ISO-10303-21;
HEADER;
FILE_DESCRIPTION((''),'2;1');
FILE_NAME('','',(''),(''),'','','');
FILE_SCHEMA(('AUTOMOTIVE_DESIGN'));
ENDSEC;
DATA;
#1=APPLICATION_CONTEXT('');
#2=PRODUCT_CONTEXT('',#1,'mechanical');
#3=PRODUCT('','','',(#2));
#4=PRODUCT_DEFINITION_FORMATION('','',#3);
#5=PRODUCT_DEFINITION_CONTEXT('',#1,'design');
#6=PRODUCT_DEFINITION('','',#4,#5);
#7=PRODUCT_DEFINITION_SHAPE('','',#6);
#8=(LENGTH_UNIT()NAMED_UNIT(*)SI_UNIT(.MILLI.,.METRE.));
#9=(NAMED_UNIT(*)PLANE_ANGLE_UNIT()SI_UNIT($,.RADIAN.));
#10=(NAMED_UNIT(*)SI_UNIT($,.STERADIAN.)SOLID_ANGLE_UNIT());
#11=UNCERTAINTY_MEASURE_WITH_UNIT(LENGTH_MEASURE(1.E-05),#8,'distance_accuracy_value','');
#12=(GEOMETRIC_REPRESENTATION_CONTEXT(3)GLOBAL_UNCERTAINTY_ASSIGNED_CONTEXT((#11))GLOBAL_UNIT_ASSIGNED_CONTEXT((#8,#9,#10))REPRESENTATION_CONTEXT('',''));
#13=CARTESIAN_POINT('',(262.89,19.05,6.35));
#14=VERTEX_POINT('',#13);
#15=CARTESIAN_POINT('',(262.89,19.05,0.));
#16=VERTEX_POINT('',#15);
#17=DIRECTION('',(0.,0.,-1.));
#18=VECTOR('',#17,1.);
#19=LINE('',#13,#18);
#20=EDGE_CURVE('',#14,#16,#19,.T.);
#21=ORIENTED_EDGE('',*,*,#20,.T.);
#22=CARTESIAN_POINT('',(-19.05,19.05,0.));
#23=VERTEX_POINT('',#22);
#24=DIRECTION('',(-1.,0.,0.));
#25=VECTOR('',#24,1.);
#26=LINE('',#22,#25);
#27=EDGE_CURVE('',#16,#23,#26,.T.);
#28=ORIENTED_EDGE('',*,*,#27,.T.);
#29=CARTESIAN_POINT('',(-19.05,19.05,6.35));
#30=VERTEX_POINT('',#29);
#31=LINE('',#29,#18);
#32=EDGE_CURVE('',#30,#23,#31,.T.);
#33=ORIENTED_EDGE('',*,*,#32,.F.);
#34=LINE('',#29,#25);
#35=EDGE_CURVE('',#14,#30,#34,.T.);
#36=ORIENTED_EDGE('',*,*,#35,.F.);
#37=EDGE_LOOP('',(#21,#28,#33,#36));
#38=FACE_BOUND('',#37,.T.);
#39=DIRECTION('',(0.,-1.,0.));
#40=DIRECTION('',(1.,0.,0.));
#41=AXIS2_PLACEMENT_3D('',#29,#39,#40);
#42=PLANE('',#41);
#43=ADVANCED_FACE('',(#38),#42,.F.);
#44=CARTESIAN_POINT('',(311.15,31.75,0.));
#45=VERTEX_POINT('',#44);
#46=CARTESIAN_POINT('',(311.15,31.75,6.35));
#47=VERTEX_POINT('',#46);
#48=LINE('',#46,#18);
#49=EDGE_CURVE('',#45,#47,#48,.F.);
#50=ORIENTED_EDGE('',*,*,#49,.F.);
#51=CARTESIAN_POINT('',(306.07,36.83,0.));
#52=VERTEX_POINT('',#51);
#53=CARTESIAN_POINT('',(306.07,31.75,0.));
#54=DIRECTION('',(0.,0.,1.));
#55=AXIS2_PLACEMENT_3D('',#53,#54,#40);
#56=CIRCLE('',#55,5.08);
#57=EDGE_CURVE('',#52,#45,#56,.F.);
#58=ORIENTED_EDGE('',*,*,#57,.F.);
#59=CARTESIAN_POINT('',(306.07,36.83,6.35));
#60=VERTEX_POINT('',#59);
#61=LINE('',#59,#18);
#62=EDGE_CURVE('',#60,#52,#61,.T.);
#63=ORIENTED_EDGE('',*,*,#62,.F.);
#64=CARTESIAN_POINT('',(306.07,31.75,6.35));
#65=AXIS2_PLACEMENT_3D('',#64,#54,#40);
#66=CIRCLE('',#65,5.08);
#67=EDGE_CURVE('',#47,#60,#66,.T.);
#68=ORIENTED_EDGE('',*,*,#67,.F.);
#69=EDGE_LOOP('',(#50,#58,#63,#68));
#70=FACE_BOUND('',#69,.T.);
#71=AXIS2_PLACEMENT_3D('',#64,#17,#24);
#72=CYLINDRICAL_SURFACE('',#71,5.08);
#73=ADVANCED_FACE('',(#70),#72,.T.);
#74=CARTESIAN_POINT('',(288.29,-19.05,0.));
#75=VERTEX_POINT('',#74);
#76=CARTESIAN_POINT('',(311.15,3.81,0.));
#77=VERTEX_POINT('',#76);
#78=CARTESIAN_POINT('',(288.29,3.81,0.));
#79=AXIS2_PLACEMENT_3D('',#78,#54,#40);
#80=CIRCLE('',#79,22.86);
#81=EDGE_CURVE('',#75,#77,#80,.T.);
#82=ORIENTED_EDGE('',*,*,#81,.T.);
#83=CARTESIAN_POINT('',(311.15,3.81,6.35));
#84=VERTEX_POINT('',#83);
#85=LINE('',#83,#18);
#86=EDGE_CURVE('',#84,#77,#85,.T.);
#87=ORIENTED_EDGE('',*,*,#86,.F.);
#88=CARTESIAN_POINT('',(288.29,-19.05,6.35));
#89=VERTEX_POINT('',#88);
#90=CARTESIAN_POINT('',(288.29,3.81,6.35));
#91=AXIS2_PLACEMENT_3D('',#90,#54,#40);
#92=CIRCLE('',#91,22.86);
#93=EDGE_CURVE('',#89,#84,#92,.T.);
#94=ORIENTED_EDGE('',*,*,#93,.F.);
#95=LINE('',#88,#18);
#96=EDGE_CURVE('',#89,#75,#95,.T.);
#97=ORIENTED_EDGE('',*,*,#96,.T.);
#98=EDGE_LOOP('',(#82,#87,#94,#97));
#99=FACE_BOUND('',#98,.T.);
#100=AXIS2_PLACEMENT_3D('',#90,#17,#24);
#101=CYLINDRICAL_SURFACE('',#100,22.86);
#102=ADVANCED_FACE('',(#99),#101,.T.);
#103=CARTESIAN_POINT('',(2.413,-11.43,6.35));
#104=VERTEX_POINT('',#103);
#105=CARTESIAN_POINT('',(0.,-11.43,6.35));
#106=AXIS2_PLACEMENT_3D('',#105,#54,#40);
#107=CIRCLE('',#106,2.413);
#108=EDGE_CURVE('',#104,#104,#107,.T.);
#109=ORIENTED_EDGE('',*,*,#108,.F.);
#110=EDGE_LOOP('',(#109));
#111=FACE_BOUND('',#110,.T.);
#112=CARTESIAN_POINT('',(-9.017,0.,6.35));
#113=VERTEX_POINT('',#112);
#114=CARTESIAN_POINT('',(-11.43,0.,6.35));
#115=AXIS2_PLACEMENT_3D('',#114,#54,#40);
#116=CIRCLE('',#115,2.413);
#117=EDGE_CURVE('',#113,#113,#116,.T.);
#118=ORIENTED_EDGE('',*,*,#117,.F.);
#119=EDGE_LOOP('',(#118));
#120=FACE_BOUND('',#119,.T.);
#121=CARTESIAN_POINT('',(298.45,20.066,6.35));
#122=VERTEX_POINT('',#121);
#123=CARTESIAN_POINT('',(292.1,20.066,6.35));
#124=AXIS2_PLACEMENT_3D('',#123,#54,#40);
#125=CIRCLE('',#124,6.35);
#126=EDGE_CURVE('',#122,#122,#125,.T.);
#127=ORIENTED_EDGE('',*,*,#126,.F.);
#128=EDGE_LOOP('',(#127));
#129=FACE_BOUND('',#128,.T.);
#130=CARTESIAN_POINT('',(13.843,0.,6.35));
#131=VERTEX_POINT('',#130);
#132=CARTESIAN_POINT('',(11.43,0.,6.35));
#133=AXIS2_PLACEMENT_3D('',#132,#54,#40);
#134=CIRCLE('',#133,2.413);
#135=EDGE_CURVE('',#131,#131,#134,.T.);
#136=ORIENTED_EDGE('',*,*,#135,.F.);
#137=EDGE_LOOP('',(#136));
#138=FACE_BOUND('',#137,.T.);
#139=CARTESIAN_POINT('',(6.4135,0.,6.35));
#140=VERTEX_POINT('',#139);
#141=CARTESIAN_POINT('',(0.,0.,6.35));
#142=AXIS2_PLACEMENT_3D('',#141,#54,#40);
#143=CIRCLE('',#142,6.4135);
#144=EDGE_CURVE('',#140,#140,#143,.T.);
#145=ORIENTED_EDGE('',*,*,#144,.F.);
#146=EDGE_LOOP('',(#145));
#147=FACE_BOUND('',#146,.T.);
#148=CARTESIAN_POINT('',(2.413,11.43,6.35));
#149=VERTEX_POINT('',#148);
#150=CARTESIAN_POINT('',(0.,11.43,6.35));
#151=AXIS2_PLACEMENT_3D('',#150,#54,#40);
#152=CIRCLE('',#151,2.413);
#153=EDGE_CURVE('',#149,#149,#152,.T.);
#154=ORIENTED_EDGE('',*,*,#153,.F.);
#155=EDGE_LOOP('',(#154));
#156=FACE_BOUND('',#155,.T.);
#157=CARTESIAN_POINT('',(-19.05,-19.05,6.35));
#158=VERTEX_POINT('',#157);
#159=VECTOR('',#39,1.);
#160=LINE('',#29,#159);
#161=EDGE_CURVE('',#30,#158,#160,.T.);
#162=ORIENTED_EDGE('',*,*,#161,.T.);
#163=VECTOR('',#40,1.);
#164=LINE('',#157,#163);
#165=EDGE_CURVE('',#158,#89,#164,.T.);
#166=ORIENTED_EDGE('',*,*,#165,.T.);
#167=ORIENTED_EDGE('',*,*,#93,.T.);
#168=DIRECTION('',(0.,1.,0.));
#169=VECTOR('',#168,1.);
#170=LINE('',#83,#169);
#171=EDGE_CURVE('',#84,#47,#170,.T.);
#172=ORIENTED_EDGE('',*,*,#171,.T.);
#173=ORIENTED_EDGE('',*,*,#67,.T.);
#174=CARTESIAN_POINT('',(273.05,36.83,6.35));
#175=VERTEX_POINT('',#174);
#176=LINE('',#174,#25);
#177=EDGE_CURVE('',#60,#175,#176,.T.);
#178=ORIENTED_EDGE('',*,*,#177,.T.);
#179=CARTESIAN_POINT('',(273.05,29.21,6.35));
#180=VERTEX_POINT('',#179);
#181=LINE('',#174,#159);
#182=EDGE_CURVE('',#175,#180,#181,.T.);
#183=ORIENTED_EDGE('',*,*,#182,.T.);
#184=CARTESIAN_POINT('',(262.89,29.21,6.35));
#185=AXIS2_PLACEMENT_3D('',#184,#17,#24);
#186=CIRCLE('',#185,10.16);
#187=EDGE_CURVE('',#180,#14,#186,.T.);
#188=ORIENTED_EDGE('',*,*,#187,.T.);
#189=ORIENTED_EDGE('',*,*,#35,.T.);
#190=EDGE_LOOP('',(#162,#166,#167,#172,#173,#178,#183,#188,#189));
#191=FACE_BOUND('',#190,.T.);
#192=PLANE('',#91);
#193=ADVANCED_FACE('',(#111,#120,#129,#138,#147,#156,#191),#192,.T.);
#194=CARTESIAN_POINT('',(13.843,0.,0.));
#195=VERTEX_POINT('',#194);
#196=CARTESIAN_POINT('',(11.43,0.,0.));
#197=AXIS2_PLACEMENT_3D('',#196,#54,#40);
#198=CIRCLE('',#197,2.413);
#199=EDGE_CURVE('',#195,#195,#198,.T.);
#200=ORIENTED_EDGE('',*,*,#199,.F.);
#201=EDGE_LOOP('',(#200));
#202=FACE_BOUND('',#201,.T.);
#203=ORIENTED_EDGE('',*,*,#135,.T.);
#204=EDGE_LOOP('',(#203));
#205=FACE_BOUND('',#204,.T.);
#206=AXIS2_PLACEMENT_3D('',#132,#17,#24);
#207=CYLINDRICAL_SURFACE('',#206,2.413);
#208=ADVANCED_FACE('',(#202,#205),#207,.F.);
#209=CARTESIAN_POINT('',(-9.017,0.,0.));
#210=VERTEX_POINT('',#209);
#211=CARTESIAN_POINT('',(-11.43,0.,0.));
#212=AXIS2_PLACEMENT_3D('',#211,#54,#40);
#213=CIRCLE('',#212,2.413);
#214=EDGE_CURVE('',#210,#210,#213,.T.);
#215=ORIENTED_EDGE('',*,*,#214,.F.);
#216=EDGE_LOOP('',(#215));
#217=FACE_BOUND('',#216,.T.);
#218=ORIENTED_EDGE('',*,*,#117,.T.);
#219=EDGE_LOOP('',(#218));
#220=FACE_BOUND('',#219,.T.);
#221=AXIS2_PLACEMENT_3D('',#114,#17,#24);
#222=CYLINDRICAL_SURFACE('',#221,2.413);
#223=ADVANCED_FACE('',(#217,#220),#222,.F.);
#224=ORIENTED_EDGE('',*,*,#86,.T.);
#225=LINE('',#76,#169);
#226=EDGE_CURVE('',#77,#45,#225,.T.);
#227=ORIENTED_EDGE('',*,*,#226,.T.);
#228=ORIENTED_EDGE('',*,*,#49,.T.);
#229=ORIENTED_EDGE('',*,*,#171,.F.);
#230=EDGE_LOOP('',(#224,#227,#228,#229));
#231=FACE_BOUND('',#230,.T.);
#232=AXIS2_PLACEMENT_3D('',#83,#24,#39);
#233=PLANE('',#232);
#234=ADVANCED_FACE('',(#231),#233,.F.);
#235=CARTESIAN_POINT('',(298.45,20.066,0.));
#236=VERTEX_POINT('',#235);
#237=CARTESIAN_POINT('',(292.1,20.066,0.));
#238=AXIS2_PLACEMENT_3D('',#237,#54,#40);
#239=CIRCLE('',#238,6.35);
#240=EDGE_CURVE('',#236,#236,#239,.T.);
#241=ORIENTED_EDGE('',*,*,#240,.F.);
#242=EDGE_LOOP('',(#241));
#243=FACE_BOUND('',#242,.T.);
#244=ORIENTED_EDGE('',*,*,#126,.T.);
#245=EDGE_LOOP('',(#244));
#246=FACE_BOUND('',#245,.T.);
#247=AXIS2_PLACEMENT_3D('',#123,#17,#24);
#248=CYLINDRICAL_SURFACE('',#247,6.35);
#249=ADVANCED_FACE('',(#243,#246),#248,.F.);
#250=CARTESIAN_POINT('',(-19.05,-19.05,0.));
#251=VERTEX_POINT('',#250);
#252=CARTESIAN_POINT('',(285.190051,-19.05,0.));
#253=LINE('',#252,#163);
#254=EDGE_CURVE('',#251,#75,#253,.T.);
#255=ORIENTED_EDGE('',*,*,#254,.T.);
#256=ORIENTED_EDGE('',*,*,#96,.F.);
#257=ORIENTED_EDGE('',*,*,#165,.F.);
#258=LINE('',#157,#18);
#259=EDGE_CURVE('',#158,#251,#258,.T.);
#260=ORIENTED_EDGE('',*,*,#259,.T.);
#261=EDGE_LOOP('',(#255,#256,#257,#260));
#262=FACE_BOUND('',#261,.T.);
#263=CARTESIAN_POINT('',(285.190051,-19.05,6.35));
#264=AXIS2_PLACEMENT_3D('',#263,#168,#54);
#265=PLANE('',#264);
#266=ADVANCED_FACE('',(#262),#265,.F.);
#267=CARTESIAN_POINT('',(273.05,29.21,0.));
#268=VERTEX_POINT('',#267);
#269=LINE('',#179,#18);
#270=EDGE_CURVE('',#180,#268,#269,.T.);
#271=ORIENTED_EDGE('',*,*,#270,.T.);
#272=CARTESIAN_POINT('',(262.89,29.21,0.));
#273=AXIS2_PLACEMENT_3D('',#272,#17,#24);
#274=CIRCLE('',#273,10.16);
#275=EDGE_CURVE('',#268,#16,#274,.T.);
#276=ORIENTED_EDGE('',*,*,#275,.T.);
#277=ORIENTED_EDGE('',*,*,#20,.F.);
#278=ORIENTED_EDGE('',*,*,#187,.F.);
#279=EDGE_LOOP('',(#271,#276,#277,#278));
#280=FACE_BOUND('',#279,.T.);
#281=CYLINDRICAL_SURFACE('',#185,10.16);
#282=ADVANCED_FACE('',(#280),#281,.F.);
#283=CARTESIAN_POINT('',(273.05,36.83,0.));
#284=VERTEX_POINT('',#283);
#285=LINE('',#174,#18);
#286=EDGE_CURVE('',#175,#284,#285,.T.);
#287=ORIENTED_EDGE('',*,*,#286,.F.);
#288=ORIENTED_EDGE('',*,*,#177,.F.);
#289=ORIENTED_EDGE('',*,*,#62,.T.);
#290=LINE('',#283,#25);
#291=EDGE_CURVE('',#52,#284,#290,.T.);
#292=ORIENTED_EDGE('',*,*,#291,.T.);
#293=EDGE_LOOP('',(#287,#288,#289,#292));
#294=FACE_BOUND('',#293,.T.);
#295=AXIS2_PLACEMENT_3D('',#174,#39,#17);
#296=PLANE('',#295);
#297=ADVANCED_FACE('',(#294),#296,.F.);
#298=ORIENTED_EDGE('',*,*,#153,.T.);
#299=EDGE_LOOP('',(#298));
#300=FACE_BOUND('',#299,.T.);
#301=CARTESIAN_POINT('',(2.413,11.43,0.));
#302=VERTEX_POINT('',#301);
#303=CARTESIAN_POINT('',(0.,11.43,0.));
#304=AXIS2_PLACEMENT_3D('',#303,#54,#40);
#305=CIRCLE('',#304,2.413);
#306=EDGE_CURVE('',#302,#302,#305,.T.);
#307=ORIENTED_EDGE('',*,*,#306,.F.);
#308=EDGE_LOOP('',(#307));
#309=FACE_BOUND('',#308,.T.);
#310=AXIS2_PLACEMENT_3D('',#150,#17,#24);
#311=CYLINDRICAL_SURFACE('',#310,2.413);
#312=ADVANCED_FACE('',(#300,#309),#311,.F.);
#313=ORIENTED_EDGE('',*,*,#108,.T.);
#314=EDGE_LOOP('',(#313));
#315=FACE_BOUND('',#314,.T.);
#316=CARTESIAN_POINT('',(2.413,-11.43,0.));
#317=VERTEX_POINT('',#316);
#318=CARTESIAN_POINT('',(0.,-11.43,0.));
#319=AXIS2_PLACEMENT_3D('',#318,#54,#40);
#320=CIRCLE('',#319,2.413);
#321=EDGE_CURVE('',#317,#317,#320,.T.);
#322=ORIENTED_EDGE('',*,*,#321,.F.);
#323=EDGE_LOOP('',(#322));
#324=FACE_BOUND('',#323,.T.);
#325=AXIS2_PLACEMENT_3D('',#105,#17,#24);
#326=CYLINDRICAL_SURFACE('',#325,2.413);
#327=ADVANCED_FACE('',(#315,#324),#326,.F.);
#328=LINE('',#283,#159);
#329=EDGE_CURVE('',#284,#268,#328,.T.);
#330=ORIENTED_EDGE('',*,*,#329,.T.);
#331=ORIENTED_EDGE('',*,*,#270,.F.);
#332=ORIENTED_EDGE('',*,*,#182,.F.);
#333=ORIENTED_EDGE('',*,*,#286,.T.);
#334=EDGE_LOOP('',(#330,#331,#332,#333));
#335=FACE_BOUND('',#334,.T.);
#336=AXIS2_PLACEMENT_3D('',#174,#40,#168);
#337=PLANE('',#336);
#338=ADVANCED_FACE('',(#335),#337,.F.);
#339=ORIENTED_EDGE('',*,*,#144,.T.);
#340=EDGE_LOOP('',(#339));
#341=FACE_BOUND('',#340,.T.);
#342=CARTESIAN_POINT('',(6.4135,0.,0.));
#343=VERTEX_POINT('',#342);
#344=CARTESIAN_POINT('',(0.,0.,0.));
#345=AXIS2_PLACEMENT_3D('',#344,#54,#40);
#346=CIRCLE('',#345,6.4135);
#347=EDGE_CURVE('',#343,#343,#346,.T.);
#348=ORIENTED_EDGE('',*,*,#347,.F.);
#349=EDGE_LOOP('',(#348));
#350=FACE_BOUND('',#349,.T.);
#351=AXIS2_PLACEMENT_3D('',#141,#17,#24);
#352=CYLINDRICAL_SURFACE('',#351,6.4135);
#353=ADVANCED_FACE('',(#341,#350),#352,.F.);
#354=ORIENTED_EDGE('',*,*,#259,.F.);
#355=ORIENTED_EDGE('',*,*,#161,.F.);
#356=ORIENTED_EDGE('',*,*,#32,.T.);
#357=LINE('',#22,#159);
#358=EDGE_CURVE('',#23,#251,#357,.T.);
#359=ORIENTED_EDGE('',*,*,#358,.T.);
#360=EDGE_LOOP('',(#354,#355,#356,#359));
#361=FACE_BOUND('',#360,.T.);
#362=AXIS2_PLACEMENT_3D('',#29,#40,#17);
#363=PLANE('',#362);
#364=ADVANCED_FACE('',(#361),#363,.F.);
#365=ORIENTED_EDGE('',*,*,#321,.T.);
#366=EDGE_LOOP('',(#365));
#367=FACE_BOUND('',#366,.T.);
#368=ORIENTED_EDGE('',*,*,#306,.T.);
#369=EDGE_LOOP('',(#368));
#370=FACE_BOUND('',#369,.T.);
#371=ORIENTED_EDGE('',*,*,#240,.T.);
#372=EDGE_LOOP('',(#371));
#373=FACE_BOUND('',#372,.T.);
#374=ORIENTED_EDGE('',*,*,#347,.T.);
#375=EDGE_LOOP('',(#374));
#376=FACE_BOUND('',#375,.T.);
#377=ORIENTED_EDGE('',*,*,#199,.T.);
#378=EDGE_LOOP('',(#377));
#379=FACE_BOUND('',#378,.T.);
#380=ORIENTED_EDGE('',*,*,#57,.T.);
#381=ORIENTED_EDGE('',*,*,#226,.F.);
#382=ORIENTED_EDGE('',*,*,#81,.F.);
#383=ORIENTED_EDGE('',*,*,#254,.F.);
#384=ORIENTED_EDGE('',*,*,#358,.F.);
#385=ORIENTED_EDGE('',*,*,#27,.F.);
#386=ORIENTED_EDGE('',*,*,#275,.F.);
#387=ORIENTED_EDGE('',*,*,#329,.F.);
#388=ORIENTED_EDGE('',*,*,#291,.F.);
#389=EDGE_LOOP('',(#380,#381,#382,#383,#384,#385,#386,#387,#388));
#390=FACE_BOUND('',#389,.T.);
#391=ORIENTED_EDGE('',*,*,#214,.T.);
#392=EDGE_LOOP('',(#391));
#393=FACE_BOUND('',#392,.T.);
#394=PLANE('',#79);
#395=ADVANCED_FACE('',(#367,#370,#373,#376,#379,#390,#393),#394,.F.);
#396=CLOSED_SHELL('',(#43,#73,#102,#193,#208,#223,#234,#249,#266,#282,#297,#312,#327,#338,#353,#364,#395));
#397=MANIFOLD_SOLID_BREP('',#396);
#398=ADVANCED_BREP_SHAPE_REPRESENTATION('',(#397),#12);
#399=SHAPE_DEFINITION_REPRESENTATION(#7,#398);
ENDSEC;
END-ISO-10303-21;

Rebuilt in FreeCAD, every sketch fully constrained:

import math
import FreeCAD as App
import Part
import Sketcher

V = App.Vector
Q = App.Units.Quantity


def edges_at(feature, points):
    """Names of the edges that pass closest to the given points."""
    edges = feature.Shape.Edges
    near = lambda p: min(range(len(edges)), key=lambda i: edges[i].distToShape(Part.Vertex(*p))[0])
    return sorted({f"Edge{near(p) + 1}" for p in points})

doc = App.newDocument("Part")
body = doc.addObject("PartDesign::Body", "Body")

sketch1 = doc.addObject("Sketcher::SketchObject", "Sketch")
body.addObject(sketch1)
sketch1.AttachmentSupport = (doc.XY_Plane, [""])
sketch1.MapMode = "FlatFace"
sketch1.addGeometry(Part.LineSegment(V(273.05, 36.83, 0), V(273.05, 29.21, 0)), False)
sketch1.addGeometry(Part.ArcOfCircle(Part.Circle(V(262.89, 29.21, 0), V(0, 0, 1), 10.16), math.radians(-90), math.radians(0)), False)
sketch1.addGeometry(Part.LineSegment(V(262.89, 19.05, 0), V(-19.05, 19.05, 0)), False)
sketch1.addGeometry(Part.LineSegment(V(-19.05, 19.05, 0), V(-19.05, -19.05, 0)), False)
sketch1.addGeometry(Part.LineSegment(V(-19.05, -19.05, 0), V(288.29, -19.05, 0)), False)
sketch1.addGeometry(Part.ArcOfCircle(Part.Circle(V(288.29, 3.81, 0), V(0, 0, 1), 22.86), math.radians(-90), math.radians(0)), False)
sketch1.addGeometry(Part.LineSegment(V(311.15, 3.81, 0), V(311.15, 36.83, 0)), False)
sketch1.addGeometry(Part.LineSegment(V(311.15, 36.83, 0), V(273.05, 36.83, 0)), False)
sketch1.addGeometry(Part.Circle(V(0, -11.43, 0), V(0, 0, 1), 2.413), False)
sketch1.addGeometry(Part.Circle(V(-11.43, 0, 0), V(0, 0, 1), 2.413), False)
sketch1.addGeometry(Part.Circle(V(0, 0, 0), V(0, 0, 1), 6.4135), False)
sketch1.addGeometry(Part.Circle(V(11.43, 0, 0), V(0, 0, 1), 2.413), False)
sketch1.addGeometry(Part.Circle(V(0, 11.43, 0), V(0, 0, 1), 2.413), False)
sketch1.addGeometry(Part.Circle(V(292.1, 20.066, 0), V(0, 0, 1), 6.35), False)
sketch1.addConstraint(Sketcher.Constraint("Tangent", 0, 2, 1, 2))
sketch1.addConstraint(Sketcher.Constraint("Tangent", 1, 1, 2, 1))
sketch1.addConstraint(Sketcher.Constraint("Coincident", 2, 2, 3, 1))
sketch1.addConstraint(Sketcher.Constraint("Coincident", 3, 2, 4, 1))
sketch1.addConstraint(Sketcher.Constraint("Tangent", 4, 2, 5, 1))
sketch1.addConstraint(Sketcher.Constraint("Tangent", 5, 2, 6, 1))
sketch1.addConstraint(Sketcher.Constraint("Coincident", 6, 2, 7, 1))
sketch1.addConstraint(Sketcher.Constraint("Coincident", 7, 2, 0, 1))
sketch1.addConstraint(Sketcher.Constraint("Vertical", 0))
sketch1.addConstraint(Sketcher.Constraint("Horizontal", 2))
sketch1.addConstraint(Sketcher.Constraint("Vertical", 3))
sketch1.addConstraint(Sketcher.Constraint("Horizontal", 4))
sketch1.addConstraint(Sketcher.Constraint("Vertical", 6))
sketch1.addConstraint(Sketcher.Constraint("Horizontal", 7))
sketch1.addConstraint(Sketcher.Constraint("Coincident", 10, 3, -1, 1))
sketch1.addConstraint(Sketcher.Constraint("Equal", 8, 9))
sketch1.addConstraint(Sketcher.Constraint("Equal", 9, 11))
sketch1.addConstraint(Sketcher.Constraint("Equal", 11, 12))
sketch1.addConstraint(Sketcher.Constraint("Symmetric", 9, 3, 11, 3, -1, 1))
sketch1.addConstraint(Sketcher.Constraint("Symmetric", 8, 3, 12, 3, -1, 1))
sketch1.addConstraint(Sketcher.Constraint("PointOnObject", 8, 3, -2))
sketch1.addConstraint(Sketcher.Constraint("PointOnObject", 9, 3, -1))
sketch1.addConstraint(Sketcher.Constraint("Equal", 7, 3))
sketch1.addConstraint(Sketcher.Constraint("Diameter", 13, Q("0.5 in")))
sketch1.addConstraint(Sketcher.Constraint("Radius", 1, Q("0.4 in")))
sketch1.addConstraint(Sketcher.Constraint("Radius", 5, Q("0.9 in")))
sketch1.addConstraint(Sketcher.Constraint("Diameter", 8, Q("0.19 in")))
sketch1.addConstraint(Sketcher.Constraint("Diameter", 10, Q("0.505 in")))
sketch1.addConstraint(Sketcher.Constraint("DistanceX", 2, 2, 2, 1, Q("11.1 in")))
sketch1.addConstraint(Sketcher.Constraint("DistanceX", 4, 1, 4, 2, Q("12.1 in")))
sketch1.addConstraint(Sketcher.Constraint("DistanceY", 0, 2, 0, 1, Q("0.3 in")))
sketch1.addConstraint(Sketcher.Constraint("DistanceX", -1, 1, 13, 3, Q("11.5 in")))
sketch1.addConstraint(Sketcher.Constraint("DistanceY", 8, 3, 1, 3, Q("1.6 in")))
sketch1.addConstraint(Sketcher.Constraint("DistanceX", 9, 3, 1, 3, Q("10.8 in")))
sketch1.addConstraint(Sketcher.Constraint("DistanceX", 9, 3, 11, 3, Q("0.9 in")))
sketch1.addConstraint(Sketcher.Constraint("DistanceY", 8, 3, 12, 3, Q("0.9 in")))
sketch1.addConstraint(Sketcher.Constraint("DistanceY", -1, 1, 13, 3, Q("0.79 in")))
pad1 = doc.addObject("PartDesign::Pad", "Pad")
body.addObject(pad1)
pad1.Profile = sketch1
pad1.Length = Q("0.25 in")
doc.recompute()

fillet = doc.addObject("PartDesign::Fillet", "Fillet")
body.addObject(fillet)
fillet.Base = (pad1, edges_at(pad1, [(311.15, 36.83, 3.175)]))
fillet.Radius = Q("0.2 in")

doc.recompute()
